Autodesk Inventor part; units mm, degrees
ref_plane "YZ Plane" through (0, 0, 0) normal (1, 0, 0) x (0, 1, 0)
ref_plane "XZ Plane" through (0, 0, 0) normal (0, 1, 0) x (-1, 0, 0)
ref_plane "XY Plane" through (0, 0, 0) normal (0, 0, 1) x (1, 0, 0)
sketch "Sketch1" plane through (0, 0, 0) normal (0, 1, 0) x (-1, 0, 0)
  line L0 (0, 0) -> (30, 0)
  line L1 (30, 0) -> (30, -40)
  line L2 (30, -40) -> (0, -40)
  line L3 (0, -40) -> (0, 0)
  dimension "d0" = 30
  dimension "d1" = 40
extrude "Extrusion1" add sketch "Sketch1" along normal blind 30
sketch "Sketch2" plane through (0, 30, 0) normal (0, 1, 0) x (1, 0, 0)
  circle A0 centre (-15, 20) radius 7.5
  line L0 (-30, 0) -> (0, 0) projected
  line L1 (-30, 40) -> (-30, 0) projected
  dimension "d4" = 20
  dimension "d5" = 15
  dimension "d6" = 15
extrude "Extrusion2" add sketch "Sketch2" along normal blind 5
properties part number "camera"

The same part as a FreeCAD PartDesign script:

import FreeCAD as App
import Part
import Sketcher

V = App.Vector

doc = App.newDocument("Part")
body = doc.addObject("PartDesign::Body", "Body")

sketch1 = body.newObject("Sketcher::SketchObject", "Sketch")
sketch1.AttachmentSupport = (doc.getObject("XZ_Plane"), [""])
sketch1.MapMode = "FlatFace"
sketch1.addGeometry(Part.LineSegment(V(-30, 0, 0), V(0, 0, 0)), False)
sketch1.addGeometry(Part.LineSegment(V(0, 0, 0), V(0, -40, 0)), False)
sketch1.addGeometry(Part.LineSegment(V(0, -40, 0), V(-30, -40, 0)), False)
sketch1.addGeometry(Part.LineSegment(V(-30, -40, 0), V(-30, 0, 0)), False)
sketch1.addConstraint(Sketcher.Constraint("Coincident", 0, 2, 1, 1))
sketch1.addConstraint(Sketcher.Constraint("Coincident", 1, 2, 2, 1))
sketch1.addConstraint(Sketcher.Constraint("Coincident", 2, 2, 3, 1))
sketch1.addConstraint(Sketcher.Constraint("Coincident", 3, 2, 0, 1))
sketch1.addConstraint(Sketcher.Constraint("Horizontal", 0))
sketch1.addConstraint(Sketcher.Constraint("Vertical", 1))
sketch1.addConstraint(Sketcher.Constraint("Horizontal", 2))
sketch1.addConstraint(Sketcher.Constraint("Vertical", 3))
sketch1.addConstraint(Sketcher.Constraint("Coincident", 0, 2, -1, 1))
sketch1.addConstraint(Sketcher.Constraint("DistanceX", 0, 1, 0, 2, 30.0))
sketch1.addConstraint(Sketcher.Constraint("DistanceY", 1, 2, 1, 1, 40.0))
pad1 = body.newObject("PartDesign::Pad", "Pad")
pad1.Profile = sketch1
pad1.Length = 30
pad1.Reversed = True

sketch2 = body.newObject("Sketcher::SketchObject", "Sketch001")
sketch2.AttachmentSupport = (doc.getObject("XZ_Plane"), [""])
sketch2.MapMode = "FlatFace"
sketch2.AttachmentOffset = App.Placement(V(0, 0, -30), App.Rotation())
sketch2.addGeometry(Part.Circle(V(-15, -20, 0), V(0, 0, 1), 8), False)
sketch2.addConstraint(Sketcher.Constraint("Diameter", 0, 15.0))
sketch2.addConstraint(Sketcher.Constraint("DistanceX", 0, 3, -1, 1, 15.0))
sketch2.addConstraint(Sketcher.Constraint("DistanceY", 0, 3, -1, 1, 20.0))
pad2 = body.newObject("PartDesign::Pad", "Pad001")
pad2.Profile = sketch2
pad2.Length = 5
pad2.Reversed = True

doc.recompute()
